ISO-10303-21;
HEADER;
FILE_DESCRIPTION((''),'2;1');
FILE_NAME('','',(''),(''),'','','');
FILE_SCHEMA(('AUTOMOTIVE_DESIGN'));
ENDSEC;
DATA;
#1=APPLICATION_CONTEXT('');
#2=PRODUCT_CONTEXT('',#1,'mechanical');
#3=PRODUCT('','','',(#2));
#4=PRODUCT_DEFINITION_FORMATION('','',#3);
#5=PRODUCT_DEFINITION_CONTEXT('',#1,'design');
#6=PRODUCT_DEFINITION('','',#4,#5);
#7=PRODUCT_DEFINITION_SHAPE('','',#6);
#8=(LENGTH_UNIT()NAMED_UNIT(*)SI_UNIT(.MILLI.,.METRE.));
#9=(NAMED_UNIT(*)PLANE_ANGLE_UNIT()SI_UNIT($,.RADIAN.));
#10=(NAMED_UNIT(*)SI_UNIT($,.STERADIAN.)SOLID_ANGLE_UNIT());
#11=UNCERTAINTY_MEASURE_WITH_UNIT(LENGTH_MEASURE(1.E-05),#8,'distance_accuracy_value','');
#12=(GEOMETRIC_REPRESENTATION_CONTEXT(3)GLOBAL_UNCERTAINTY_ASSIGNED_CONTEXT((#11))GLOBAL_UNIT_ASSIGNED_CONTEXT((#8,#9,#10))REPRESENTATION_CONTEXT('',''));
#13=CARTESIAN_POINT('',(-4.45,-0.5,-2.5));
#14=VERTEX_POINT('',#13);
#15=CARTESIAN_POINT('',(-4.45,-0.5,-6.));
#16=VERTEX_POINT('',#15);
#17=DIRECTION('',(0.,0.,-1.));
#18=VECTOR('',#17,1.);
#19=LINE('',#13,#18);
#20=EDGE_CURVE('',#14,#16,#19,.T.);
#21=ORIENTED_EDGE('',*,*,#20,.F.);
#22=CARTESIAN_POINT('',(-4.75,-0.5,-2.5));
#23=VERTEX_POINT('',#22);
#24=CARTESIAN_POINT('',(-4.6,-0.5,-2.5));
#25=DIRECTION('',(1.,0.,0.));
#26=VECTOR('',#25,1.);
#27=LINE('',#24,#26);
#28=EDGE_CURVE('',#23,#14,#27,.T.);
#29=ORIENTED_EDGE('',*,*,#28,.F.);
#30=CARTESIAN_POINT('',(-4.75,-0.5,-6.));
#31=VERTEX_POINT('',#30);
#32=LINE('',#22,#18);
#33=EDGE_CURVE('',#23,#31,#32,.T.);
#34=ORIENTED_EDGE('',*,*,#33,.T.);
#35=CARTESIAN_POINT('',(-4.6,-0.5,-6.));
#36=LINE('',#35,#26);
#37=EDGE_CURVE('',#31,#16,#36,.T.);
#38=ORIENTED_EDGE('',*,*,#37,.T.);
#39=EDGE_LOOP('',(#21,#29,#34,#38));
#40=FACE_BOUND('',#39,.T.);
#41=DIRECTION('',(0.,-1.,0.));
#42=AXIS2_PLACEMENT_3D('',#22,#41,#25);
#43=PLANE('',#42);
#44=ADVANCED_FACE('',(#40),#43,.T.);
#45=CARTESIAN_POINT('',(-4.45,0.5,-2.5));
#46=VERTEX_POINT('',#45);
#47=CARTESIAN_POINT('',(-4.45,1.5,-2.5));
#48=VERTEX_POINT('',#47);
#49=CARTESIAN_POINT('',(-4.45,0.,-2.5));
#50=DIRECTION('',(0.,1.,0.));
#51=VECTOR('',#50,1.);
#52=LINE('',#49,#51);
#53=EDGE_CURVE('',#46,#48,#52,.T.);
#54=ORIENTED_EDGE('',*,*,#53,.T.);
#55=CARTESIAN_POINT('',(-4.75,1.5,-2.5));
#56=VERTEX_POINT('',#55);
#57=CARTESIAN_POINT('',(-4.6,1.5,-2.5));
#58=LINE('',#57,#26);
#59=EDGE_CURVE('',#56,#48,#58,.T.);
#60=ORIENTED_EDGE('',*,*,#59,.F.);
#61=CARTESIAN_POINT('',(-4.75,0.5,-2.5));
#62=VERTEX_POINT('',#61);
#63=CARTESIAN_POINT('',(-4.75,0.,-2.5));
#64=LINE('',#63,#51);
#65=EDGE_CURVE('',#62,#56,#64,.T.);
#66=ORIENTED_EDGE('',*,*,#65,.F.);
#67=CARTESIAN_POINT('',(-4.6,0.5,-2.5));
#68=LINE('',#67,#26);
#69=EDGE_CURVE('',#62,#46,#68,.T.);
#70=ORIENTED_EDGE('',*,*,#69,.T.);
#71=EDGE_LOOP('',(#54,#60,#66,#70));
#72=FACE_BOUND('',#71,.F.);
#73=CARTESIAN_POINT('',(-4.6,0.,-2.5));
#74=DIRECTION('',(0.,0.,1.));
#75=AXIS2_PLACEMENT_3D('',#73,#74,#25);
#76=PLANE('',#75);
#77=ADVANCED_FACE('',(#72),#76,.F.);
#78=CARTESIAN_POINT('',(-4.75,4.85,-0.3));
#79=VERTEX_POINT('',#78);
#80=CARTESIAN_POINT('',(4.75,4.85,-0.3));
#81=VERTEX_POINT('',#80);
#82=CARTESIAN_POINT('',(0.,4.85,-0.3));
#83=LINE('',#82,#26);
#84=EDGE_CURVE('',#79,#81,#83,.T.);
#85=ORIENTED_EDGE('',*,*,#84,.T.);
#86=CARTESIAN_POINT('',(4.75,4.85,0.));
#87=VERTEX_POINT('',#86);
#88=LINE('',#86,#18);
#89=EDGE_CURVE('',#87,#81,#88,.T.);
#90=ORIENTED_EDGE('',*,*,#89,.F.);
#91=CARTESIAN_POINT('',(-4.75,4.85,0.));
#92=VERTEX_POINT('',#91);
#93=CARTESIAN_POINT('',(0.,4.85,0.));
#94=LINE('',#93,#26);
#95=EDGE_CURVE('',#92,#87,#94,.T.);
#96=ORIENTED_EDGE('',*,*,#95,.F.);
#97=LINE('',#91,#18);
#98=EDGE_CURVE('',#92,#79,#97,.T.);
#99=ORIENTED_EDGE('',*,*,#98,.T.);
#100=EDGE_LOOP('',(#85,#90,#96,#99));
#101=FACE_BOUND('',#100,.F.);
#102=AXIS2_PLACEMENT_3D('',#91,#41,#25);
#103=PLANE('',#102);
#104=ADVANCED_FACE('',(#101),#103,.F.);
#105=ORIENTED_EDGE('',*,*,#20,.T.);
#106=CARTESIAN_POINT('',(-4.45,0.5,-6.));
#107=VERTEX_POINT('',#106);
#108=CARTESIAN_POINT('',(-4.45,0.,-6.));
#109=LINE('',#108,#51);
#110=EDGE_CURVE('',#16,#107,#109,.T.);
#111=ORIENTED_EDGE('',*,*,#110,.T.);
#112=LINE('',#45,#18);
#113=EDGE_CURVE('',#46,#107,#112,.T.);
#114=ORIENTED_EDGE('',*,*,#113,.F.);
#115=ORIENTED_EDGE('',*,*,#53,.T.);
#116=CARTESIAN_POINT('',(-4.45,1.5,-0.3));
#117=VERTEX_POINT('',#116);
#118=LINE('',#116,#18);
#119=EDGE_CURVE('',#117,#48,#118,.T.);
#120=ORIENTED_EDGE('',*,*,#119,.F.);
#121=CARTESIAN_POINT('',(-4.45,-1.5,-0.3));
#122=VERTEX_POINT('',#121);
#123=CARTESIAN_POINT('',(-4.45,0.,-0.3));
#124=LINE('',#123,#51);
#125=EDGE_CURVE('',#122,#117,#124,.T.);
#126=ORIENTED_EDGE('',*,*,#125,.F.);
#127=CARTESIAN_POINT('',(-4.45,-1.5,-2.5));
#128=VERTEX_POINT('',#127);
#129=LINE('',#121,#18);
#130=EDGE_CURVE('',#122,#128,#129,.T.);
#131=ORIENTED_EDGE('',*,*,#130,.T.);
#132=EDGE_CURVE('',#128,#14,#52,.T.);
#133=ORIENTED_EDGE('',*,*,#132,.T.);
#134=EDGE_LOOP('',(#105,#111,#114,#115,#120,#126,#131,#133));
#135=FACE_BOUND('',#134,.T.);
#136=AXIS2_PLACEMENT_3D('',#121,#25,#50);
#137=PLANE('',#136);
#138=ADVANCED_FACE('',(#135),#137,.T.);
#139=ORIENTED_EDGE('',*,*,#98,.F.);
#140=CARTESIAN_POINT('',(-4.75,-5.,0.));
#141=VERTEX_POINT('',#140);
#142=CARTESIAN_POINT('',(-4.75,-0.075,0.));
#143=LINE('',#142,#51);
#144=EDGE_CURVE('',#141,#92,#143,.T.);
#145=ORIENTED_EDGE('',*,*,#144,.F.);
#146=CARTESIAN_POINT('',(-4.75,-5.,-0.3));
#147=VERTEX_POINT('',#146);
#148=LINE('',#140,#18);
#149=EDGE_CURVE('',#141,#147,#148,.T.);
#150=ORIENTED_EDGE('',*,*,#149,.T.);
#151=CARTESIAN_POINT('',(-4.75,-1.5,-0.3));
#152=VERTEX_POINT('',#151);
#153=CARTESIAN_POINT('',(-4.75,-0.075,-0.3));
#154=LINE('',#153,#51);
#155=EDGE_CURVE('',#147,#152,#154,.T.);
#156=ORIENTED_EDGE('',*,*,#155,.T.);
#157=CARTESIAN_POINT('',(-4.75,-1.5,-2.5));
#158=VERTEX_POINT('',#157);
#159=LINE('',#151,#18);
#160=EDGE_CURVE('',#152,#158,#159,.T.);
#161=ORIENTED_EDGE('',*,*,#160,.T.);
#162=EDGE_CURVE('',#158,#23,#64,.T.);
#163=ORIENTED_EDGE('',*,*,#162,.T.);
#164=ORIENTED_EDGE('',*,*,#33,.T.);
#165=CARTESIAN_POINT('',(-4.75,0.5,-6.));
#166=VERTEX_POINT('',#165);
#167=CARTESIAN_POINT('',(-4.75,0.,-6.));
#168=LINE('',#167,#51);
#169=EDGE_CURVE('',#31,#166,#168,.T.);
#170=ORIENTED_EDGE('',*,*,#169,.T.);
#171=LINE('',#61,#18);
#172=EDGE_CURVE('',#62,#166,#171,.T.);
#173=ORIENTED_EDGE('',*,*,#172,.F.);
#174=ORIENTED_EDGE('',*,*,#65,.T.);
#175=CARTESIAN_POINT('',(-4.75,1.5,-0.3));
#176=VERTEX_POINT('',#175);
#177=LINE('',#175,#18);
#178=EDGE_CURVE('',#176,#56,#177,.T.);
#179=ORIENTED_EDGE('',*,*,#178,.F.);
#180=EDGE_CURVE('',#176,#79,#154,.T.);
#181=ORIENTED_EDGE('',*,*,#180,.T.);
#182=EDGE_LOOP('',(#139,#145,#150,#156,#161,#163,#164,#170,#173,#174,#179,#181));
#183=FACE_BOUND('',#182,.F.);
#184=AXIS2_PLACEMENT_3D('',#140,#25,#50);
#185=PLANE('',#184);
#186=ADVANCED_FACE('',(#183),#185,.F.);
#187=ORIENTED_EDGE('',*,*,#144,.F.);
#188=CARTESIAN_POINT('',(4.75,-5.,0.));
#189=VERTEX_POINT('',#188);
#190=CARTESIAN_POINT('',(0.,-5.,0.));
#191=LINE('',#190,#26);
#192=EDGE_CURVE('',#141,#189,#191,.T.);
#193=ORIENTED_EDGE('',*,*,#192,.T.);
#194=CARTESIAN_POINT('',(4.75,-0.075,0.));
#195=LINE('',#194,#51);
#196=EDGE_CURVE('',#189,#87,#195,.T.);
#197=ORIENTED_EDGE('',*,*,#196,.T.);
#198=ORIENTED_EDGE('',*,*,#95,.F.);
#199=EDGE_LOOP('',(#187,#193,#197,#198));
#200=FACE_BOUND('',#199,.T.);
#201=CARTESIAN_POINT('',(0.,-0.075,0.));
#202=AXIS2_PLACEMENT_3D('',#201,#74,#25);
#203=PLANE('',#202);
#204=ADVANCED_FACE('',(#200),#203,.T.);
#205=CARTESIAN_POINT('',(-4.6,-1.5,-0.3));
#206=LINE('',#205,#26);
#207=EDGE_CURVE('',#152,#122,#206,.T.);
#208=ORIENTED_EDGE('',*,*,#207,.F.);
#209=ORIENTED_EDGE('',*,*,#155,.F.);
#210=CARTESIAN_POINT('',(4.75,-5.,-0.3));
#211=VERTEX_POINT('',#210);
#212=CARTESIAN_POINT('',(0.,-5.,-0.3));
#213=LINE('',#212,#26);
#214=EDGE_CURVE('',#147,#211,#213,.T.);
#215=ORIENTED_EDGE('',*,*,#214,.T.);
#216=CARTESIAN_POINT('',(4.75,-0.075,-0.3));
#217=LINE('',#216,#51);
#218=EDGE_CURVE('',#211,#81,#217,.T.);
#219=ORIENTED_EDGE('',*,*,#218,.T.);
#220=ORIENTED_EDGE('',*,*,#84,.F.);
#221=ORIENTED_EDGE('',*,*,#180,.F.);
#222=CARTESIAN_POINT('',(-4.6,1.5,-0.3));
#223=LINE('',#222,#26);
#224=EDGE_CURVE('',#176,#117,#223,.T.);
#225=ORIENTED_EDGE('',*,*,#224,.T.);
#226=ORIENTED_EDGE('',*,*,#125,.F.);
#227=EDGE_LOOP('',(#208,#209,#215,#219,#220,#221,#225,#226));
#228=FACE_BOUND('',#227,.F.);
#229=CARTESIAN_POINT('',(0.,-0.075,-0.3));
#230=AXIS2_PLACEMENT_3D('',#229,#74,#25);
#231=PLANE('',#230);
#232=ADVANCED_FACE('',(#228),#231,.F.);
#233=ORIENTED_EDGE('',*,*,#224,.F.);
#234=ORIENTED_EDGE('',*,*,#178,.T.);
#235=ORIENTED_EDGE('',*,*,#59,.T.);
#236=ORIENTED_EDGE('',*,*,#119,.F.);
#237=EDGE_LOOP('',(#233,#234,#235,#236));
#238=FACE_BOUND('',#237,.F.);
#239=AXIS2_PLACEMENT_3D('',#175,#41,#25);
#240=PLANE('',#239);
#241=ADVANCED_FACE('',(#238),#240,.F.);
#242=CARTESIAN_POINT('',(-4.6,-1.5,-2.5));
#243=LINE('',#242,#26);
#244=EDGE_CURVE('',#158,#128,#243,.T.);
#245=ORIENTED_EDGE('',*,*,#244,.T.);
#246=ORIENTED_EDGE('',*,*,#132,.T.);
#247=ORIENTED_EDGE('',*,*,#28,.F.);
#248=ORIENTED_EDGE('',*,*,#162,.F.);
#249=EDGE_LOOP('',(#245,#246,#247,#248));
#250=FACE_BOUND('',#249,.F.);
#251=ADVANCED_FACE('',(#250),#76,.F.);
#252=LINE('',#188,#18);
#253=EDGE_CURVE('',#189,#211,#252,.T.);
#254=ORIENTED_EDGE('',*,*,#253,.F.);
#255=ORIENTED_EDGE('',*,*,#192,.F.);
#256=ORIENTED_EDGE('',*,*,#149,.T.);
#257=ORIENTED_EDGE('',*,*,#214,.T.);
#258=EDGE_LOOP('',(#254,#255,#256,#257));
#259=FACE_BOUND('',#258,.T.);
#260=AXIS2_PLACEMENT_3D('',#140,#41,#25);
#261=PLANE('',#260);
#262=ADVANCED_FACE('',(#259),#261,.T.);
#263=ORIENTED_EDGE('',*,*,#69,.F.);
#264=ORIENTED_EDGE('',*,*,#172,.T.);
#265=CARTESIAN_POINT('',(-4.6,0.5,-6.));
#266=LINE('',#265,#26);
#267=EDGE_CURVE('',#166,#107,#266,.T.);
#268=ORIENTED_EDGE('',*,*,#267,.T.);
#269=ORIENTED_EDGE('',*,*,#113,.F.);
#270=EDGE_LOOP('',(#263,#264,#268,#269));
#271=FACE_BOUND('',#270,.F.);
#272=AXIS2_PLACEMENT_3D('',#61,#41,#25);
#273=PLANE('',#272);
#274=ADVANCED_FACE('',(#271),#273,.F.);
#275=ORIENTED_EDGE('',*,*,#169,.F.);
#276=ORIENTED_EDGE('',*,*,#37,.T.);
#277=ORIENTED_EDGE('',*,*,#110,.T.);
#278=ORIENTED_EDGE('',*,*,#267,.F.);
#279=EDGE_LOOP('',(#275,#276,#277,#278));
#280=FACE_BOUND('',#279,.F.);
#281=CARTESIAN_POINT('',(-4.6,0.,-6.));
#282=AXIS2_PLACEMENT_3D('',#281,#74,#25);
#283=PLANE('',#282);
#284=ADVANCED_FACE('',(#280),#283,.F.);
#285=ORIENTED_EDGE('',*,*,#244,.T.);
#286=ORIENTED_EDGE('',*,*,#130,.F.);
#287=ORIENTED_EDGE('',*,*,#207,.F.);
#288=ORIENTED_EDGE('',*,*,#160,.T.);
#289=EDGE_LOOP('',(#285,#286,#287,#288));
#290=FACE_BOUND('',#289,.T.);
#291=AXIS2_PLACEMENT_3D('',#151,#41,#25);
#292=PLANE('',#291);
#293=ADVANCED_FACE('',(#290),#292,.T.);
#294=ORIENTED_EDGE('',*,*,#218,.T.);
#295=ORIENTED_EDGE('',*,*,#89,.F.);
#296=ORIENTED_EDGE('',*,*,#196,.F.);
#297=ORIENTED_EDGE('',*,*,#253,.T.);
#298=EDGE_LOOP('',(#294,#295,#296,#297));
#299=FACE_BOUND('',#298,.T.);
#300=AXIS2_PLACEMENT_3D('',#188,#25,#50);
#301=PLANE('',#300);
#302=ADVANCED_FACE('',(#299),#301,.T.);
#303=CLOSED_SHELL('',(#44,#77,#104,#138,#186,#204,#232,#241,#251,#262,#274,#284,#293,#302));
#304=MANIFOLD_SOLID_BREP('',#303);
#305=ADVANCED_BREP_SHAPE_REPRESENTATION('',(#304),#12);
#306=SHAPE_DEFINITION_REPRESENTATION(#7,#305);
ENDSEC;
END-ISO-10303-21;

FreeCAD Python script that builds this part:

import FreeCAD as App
import Part
import Sketcher

V = App.Vector

doc = App.newDocument("Part")
params = doc.addObject("Spreadsheet::Sheet", "Params")
for row, (alias, value) in enumerate([
    ("sketch1_width", "9.5 mm"),
    ("sketch1_height", "9.85 mm"),
    ("pad1_length", "0.3 mm"),
    ("sketch2_height", "3 mm"),
    ("sketch2_width", "0.3 mm"),
    ("pad2_length", "2.2 mm"),
    ("sketch3_height", "1 mm"),
    ("sketch3_width", "0.3 mm"),
    ("pad3_length", "3.5 mm"),
], start=1):
    params.set(f"A{row}", alias)
    params.set(f"B{row}", "=" + value)
    params.setAlias(f"B{row}", alias)

body = doc.addObject("PartDesign::Body", "Body")

# Sketch on XY plane
sketch1 = doc.addObject("Sketcher::SketchObject", "Sketch")
body.addObject(sketch1)
sketch1.AttachmentSupport = (doc.XY_Plane, [""])
sketch1.MapMode = "FlatFace"
sketch1.addGeometry(Part.LineSegment(V(-4.75, 4.85, 0), V(-4.75, -5, 0)), False)
sketch1.addGeometry(Part.LineSegment(V(-4.75, -5, 0), V(4.75, -5, 0)), False)
sketch1.addGeometry(Part.LineSegment(V(4.75, -5, 0), V(4.75, 4.85, 0)), False)
sketch1.addGeometry(Part.LineSegment(V(4.75, 4.85, 0), V(-4.75, 4.85, 0)), False)
sketch1.addConstraint(Sketcher.Constraint("Coincident", 0, 2, 1, 1))
sketch1.addConstraint(Sketcher.Constraint("Coincident", 1, 2, 2, 1))
sketch1.addConstraint(Sketcher.Constraint("Coincident", 2, 2, 3, 1))
sketch1.addConstraint(Sketcher.Constraint("Coincident", 3, 2, 0, 1))
sketch1.addConstraint(Sketcher.Constraint("Vertical", 0))
sketch1.addConstraint(Sketcher.Constraint("Horizontal", 1))
sketch1.addConstraint(Sketcher.Constraint("Vertical", 2))
sketch1.addConstraint(Sketcher.Constraint("Horizontal", 3))
sketch1.addConstraint(Sketcher.Constraint("DistanceX", 1, 1, 1, 2, 9.5))
sketch1.addConstraint(Sketcher.Constraint("DistanceY", 0, 2, -1, 1, 5.0))
sketch1.addConstraint(Sketcher.Constraint("DistanceY", 0, 2, 0, 1, 9.85))
sketch1.addConstraint(Sketcher.Constraint("DistanceX", 0, 2, -1, 1, 4.75))
sketch1.setExpression("Constraints[8]", "Params.sketch1_width")
sketch1.setExpression("Constraints[10]", "Params.sketch1_height")
pad1 = doc.addObject("PartDesign::Pad", "Pad")
body.addObject(pad1)
pad1.Profile = sketch1
pad1.setExpression("Length", "Params.pad1_length")
pad1.Reversed = True

# Sketch on XY plane
sketch2 = doc.addObject("Sketcher::SketchObject", "Sketch001")
body.addObject(sketch2)
sketch2.AttachmentSupport = (doc.XY_Plane, [""])
sketch2.MapMode = "FlatFace"
sketch2.AttachmentOffset = App.Placement(V(0, 0, -0.3), App.Rotation())
sketch2.addGeometry(Part.LineSegment(V(-4.75, 1.5, 0), V(-4.75, -1.5, 0)), False)
sketch2.addGeometry(Part.LineSegment(V(-4.75, -1.5, 0), V(-4.45, -1.5, 0)), False)
sketch2.addGeometry(Part.LineSegment(V(-4.45, -1.5, 0), V(-4.45, 1.5, 0)), False)
sketch2.addGeometry(Part.LineSegment(V(-4.45, 1.5, 0), V(-4.75, 1.5, 0)), False)
sketch2.addConstraint(Sketcher.Constraint("Coincident", 0, 2, 1, 1))
sketch2.addConstraint(Sketcher.Constraint("Coincident", 1, 2, 2, 1))
sketch2.addConstraint(Sketcher.Constraint("Coincident", 2, 2, 3, 1))
sketch2.addConstraint(Sketcher.Constraint("Coincident", 3, 2, 0, 1))
sketch2.addConstraint(Sketcher.Constraint("Vertical", 0))
sketch2.addConstraint(Sketcher.Constraint("Horizontal", 1))
sketch2.addConstraint(Sketcher.Constraint("Vertical", 2))
sketch2.addConstraint(Sketcher.Constraint("Horizontal", 3))
sketch2.addConstraint(Sketcher.Constraint("DistanceY", 0, 2, 0, 1, 3.0))
sketch2.addConstraint(Sketcher.Constraint("DistanceX", 1, 1, 1, 2, 0.3))
sketch2.addConstraint(Sketcher.Constraint("DistanceY", 0, 2, -1, 1, 1.5))
sketch2.addConstraint(Sketcher.Constraint("DistanceX", 0, 2, -1, 1, 4.75))
sketch2.setExpression("Constraints[8]", "Params.sketch2_height")
sketch2.setExpression("Constraints[9]", "Params.sketch2_width")
pad2 = doc.addObject("PartDesign::Pad", "Pad001")
body.addObject(pad2)
pad2.Profile = sketch2
pad2.setExpression("Length", "Params.pad2_length")
pad2.Reversed = True

# Sketch on XY plane
sketch3 = doc.addObject("Sketcher::SketchObject", "Sketch002")
body.addObject(sketch3)
sketch3.AttachmentSupport = (doc.XY_Plane, [""])
sketch3.MapMode = "FlatFace"
sketch3.AttachmentOffset = App.Placement(V(0, 0, -2.5), App.Rotation())
sketch3.addGeometry(Part.LineSegment(V(-4.75, 0.5, 0), V(-4.75, -0.5, 0)), False)
sketch3.addGeometry(Part.LineSegment(V(-4.75, -0.5, 0), V(-4.45, -0.5, 0)), False)
sketch3.addGeometry(Part.LineSegment(V(-4.45, -0.5, 0), V(-4.45, 0.5, 0)), False)
sketch3.addGeometry(Part.LineSegment(V(-4.45, 0.5, 0), V(-4.75, 0.5, 0)), False)
sketch3.addConstraint(Sketcher.Constraint("Coincident", 0, 2, 1, 1))
sketch3.addConstraint(Sketcher.Constraint("Coincident", 1, 2, 2, 1))
sketch3.addConstraint(Sketcher.Constraint("Coincident", 2, 2, 3, 1))
sketch3.addConstraint(Sketcher.Constraint("Coincident", 3, 2, 0, 1))
sketch3.addConstraint(Sketcher.Constraint("Vertical", 0))
sketch3.addConstraint(Sketcher.Constraint("Horizontal", 1))
sketch3.addConstraint(Sketcher.Constraint("Vertical", 2))
sketch3.addConstraint(Sketcher.Constraint("Horizontal", 3))
sketch3.addConstraint(Sketcher.Constraint("DistanceY", 0, 2, 0, 1, 1.0))
sketch3.addConstraint(Sketcher.Constraint("DistanceX", 1, 1, 1, 2, 0.3))
sketch3.addConstraint(Sketcher.Constraint("DistanceY", 0, 2, -1, 1, 0.5))
sketch3.addConstraint(Sketcher.Constraint("DistanceX", 0, 2, -1, 1, 4.75))
sketch3.setExpression("Constraints[8]", "Params.sketch3_height")
sketch3.setExpression("Constraints[9]", "Params.sketch3_width")
pad3 = doc.addObject("PartDesign::Pad", "Pad002")
body.addObject(pad3)
pad3.Profile = sketch3
pad3.setExpression("Length", "Params.pad3_length")
pad3.Reversed = True

doc.recompute()
